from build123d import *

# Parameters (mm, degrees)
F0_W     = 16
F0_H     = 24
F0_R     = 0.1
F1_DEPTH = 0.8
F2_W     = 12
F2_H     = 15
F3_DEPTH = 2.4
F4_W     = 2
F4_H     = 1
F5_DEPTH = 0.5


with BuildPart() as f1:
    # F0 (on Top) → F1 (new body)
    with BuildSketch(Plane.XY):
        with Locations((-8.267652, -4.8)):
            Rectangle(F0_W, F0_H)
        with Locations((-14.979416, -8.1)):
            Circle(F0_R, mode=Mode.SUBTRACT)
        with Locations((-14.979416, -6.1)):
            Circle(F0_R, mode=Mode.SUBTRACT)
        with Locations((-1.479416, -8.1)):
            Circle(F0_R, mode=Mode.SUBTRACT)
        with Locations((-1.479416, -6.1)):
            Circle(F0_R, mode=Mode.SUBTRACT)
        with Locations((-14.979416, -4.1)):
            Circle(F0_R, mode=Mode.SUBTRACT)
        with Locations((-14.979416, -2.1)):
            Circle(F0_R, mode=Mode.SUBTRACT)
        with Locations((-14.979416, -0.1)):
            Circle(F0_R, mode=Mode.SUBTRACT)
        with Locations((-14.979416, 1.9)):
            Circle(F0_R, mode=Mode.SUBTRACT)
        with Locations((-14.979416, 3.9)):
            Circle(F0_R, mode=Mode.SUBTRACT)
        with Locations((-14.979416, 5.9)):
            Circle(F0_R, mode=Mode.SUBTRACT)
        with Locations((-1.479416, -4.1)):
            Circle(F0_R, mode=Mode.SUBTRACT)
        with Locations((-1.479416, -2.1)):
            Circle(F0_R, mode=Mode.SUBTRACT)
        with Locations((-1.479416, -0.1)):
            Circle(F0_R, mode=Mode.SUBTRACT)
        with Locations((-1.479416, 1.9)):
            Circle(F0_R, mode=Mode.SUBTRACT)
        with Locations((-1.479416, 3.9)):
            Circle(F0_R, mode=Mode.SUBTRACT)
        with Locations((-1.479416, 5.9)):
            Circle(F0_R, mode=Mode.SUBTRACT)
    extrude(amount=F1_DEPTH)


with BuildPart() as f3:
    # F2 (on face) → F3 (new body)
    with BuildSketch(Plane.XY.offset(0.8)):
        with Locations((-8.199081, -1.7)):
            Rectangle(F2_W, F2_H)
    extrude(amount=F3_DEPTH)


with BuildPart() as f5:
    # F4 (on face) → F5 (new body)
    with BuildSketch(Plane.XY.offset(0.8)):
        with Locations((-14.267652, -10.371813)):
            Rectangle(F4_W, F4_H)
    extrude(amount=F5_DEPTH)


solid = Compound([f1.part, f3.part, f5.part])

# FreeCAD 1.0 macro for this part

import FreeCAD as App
import Part
import Sketcher
from FreeCAD import Vector
Q = App.Units.Quantity


def add_polygon(sketch, points):
    """Adds a closed chain of lines whose ends are joined by coincident constraints."""
    first, n = sketch.GeometryCount, len(points)
    for a, b in zip(points, points[1:] + points[:1]):
        sketch.addGeometry(Part.LineSegment(App.Vector(*a, 0), App.Vector(*b, 0)), False)
    for i in range(n):
        sketch.addConstraint(Sketcher.Constraint("Coincident", first + i, 2, first + (i + 1) % n, 1))

doc = App.newDocument("Part")
params = doc.addObject("Spreadsheet::Sheet", "Params")
for row, (alias, value) in enumerate([
    ("sketch1_diameter", "0.2 mm"),
    ("sketch1_width", "16 mm"),
    ("sketch1_height", "24 mm"),
    ("pad1_length", "0.8 mm"),
    ("sketch2_width", "12 mm"),
    ("sketch2_height", "15 mm"),
    ("pad2_length", "2.4 mm"),
    ("sketch3_width", "2 mm"),
    ("sketch3_height", "1 mm"),
    ("pad3_length", "0.5 mm"),
], start=1):
    params.set(f"A{row}", alias)
    params.set(f"B{row}", "=" + value)
    params.setAlias(f"B{row}", alias)

body = doc.addObject("PartDesign::Body", "Body")

# Sketch on XY plane
sketch1 = body.newObject("Sketcher::SketchObject", "Sketch")
sketch1.AttachmentSupport = (doc.getObject("XY_Plane"), [""])
sketch1.MapMode = "FlatFace"
add_polygon(sketch1, [(-16.27, 7.2), (-16.27, -16.8), (-0.27, -16.8), (-0.27, 7.2)])  # lines 0-3
sketch1.addGeometry(Part.Circle(Vector(-14.98, -8.1, 0), Vector(0, 0, 1), 0.1), False)  # 4
sketch1.addGeometry(Part.Circle(Vector(-14.98, -6.1, 0), Vector(0, 0, 1), 0.1), False)  # 5
sketch1.addGeometry(Part.Circle(Vector(-14.98, -4.1, 0), Vector(0, 0, 1), 0.1), False)  # 6
sketch1.addGeometry(Part.Circle(Vector(-14.98, -2.1, 0), Vector(0, 0, 1), 0.1), False)  # 7
sketch1.addGeometry(Part.Circle(Vector(-1.48, -8.1, 0), Vector(0, 0, 1), 0.1), False)  # 8
sketch1.addGeometry(Part.Circle(Vector(-1.48, -6.1, 0), Vector(0, 0, 1), 0.1), False)  # 9
sketch1.addGeometry(Part.Circle(Vector(-1.48, -4.1, 0), Vector(0, 0, 1), 0.1), False)  # 10
sketch1.addGeometry(Part.Circle(Vector(-1.48, -2.1, 0), Vector(0, 0, 1), 0.1), False)  # 11
sketch1.addGeometry(Part.Circle(Vector(-14.98, -0.1, 0), Vector(0, 0, 1), 0.1), False)  # 12
sketch1.addGeometry(Part.Circle(Vector(-14.98, 1.9, 0), Vector(0, 0, 1), 0.1), False)  # 13
sketch1.addGeometry(Part.Circle(Vector(-14.98, 3.9, 0), Vector(0, 0, 1), 0.1), False)  # 14
sketch1.addGeometry(Part.Circle(Vector(-14.98, 5.9, 0), Vector(0, 0, 1), 0.1), False)  # 15
sketch1.addGeometry(Part.Circle(Vector(-1.48, -0.1, 0), Vector(0, 0, 1), 0.1), False)  # 16
sketch1.addGeometry(Part.Circle(Vector(-1.48, 1.9, 0), Vector(0, 0, 1), 0.1), False)  # 17
sketch1.addGeometry(Part.Circle(Vector(-1.48, 3.9, 0), Vector(0, 0, 1), 0.1), False)  # 18
sketch1.addGeometry(Part.Circle(Vector(-1.48, 5.9, 0), Vector(0, 0, 1), 0.1), False)  # 19
sketch1.addConstraint(Sketcher.Constraint("Vertical", 0))
sketch1.addConstraint(Sketcher.Constraint("Horizontal", 1))
sketch1.addConstraint(Sketcher.Constraint("Vertical", 2))
sketch1.addConstraint(Sketcher.Constraint("Horizontal", 3))
sketch1.addConstraint(Sketcher.Constraint("Equal", 4, 5))
sketch1.addConstraint(Sketcher.Constraint("Equal", 5, 6))
sketch1.addConstraint(Sketcher.Constraint("Equal", 6, 7))
sketch1.addConstraint(Sketcher.Constraint("Equal", 7, 8))
sketch1.addConstraint(Sketcher.Constraint("Equal", 8, 9))
sketch1.addConstraint(Sketcher.Constraint("Equal", 9, 10))
sketch1.addConstraint(Sketcher.Constraint("Equal", 10, 11))
sketch1.addConstraint(Sketcher.Constraint("Equal", 11, 12))
sketch1.addConstraint(Sketcher.Constraint("Equal", 12, 13))
sketch1.addConstraint(Sketcher.Constraint("Equal", 13, 14))
sketch1.addConstraint(Sketcher.Constraint("Equal", 14, 15))
sketch1.addConstraint(Sketcher.Constraint("Equal", 15, 16))
sketch1.addConstraint(Sketcher.Constraint("Equal", 16, 17))
sketch1.addConstraint(Sketcher.Constraint("Equal", 17, 18))
sketch1.addConstraint(Sketcher.Constraint("Equal", 18, 19))
sketch1.addConstraint(Sketcher.Constraint("Horizontal", 4, 3, 8, 3))
sketch1.addConstraint(Sketcher.Constraint("Horizontal", 5, 3, 9, 3))
sketch1.addConstraint(Sketcher.Constraint("Horizontal", 6, 3, 10, 3))
sketch1.addConstraint(Sketcher.Constraint("Horizontal", 7, 3, 11, 3))
sketch1.addConstraint(Sketcher.Constraint("Horizontal", 12, 3, 16, 3))
sketch1.addConstraint(Sketcher.Constraint("Horizontal", 13, 3, 17, 3))
sketch1.addConstraint(Sketcher.Constraint("Horizontal", 14, 3, 18, 3))
sketch1.addConstraint(Sketcher.Constraint("Horizontal", 15, 3, 19, 3))
sketch1.addConstraint(Sketcher.Constraint("Vertical", 4, 3, 5, 3))
sketch1.addConstraint(Sketcher.Constraint("Vertical", 5, 3, 6, 3))
sketch1.addConstraint(Sketcher.Constraint("Vertical", 6, 3, 7, 3))
sketch1.addConstraint(Sketcher.Constraint("Vertical", 8, 3, 9, 3))
sketch1.addConstraint(Sketcher.Constraint("Vertical", 9, 3, 10, 3))
sketch1.addConstraint(Sketcher.Constraint("Vertical", 10, 3, 11, 3))
sketch1.addConstraint(Sketcher.Constraint("Vertical", 7, 3, 12, 3))
sketch1.addConstraint(Sketcher.Constraint("Vertical", 12, 3, 13, 3))
sketch1.addConstraint(Sketcher.Constraint("Vertical", 13, 3, 14, 3))
sketch1.addConstraint(Sketcher.Constraint("Vertical", 14, 3, 15, 3))
sketch1.addConstraint(Sketcher.Constraint("Vertical", 11, 3, 16, 3))
sketch1.addConstraint(Sketcher.Constraint("Vertical", 16, 3, 17, 3))
sketch1.addConstraint(Sketcher.Constraint("Vertical", 17, 3, 18, 3))
sketch1.addConstraint(Sketcher.Constraint("Vertical", 18, 3, 19, 3))
sketch1.addConstraint(Sketcher.Constraint("Diameter", 4, Q("0.2 mm")))
sketch1.addConstraint(Sketcher.Constraint("DistanceX", 1, 1, 1, 2, Q("16 mm")))
sketch1.addConstraint(Sketcher.Constraint("DistanceY", 0, 2, 0, 1, Q("24 mm")))
sketch1.addConstraint(Sketcher.Constraint("DistanceY", 4, 3, 5, 3, Q("2 mm")))
sketch1.addConstraint(Sketcher.Constraint("DistanceY", 5, 3, 6, 3, Q("2 mm")))
sketch1.addConstraint(Sketcher.Constraint("DistanceY", 6, 3, 7, 3, Q("2 mm")))
sketch1.addConstraint(Sketcher.Constraint("DistanceY", 7, 3, 12, 3, Q("2 mm")))
sketch1.addConstraint(Sketcher.Constraint("DistanceY", 12, 3, 13, 3, Q("2 mm")))
sketch1.addConstraint(Sketcher.Constraint("DistanceY", 13, 3, 14, 3, Q("2 mm")))
sketch1.addConstraint(Sketcher.Constraint("DistanceY", 14, 3, 15, 3, Q("2 mm")))
sketch1.addConstraint(Sketcher.Constraint("DistanceY", 4, 3, -1, 1, Q("8.1 mm")))
sketch1.addConstraint(Sketcher.Constraint("DistanceY", 0, 2, -1, 1, Q("16.8 mm")))
sketch1.addConstraint(Sketcher.Constraint("DistanceX", 4, 3, 8, 3, Q("13.5 mm")))
sketch1.addConstraint(Sketcher.Constraint("DistanceX", 0, 2, -1, 1, Q("16.267652 mm")))
sketch1.addConstraint(Sketcher.Constraint("DistanceX", 4, 3, -1, 1, Q("14.979416 mm")))
sketch1.setExpression("Constraints[45]", "Params.sketch1_diameter")
sketch1.setExpression("Constraints[46]", "Params.sketch1_width")
sketch1.setExpression("Constraints[47]", "Params.sketch1_height")
pad1 = body.newObject("PartDesign::Pad", "Pad")
pad1.Profile = sketch1
pad1.setExpression("Length", "Params.pad1_length")
body2 = doc.addObject("PartDesign::Body", "Body001")

# Sketch on XY plane
sketch2 = body2.newObject("Sketcher::SketchObject", "Sketch001")
sketch2.AttachmentSupport = (doc.getObject("XY_Plane001"), [""])
sketch2.MapMode = "FlatFace"
sketch2.AttachmentOffset = App.Placement(Vector(0, 0, 0.8), App.Rotation())
add_polygon(sketch2, [(-14, 6), (-14, -9), (-2, -9), (-2, 6)])  # lines 0-3
sketch2.addConstraint(Sketcher.Constraint("Vertical", 0))
sketch2.addConstraint(Sketcher.Constraint("Horizontal", 1))
sketch2.addConstraint(Sketcher.Constraint("Vertical", 2))
sketch2.addConstraint(Sketcher.Constraint("Horizontal", 3))
sketch2.addConstraint(Sketcher.Constraint("DistanceX", 1, 1, 1, 2, Q("12 mm")))
sketch2.addConstraint(Sketcher.Constraint("DistanceY", 0, 2, 0, 1, Q("15 mm")))
sketch2.addConstraint(Sketcher.Constraint("DistanceY", 0, 2, -1, 1, Q("9.2 mm")))
sketch2.addConstraint(Sketcher.Constraint("DistanceX", 0, 2, -1, 1, Q("14.199081 mm")))
sketch2.setExpression("Constraints[8]", "Params.sketch2_width")
sketch2.setExpression("Constraints[9]", "Params.sketch2_height")
pad2 = body2.newObject("PartDesign::Pad", "Pad001")
pad2.Profile = sketch2
pad2.setExpression("Length", "Params.pad2_length")
body3 = doc.addObject("PartDesign::Body", "Body002")

# Sketch on XY plane
sketch3 = body3.newObject("Sketcher::SketchObject", "Sketch002")
sketch3.AttachmentSupport = (doc.getObject("XY_Plane002"), [""])
sketch3.MapMode = "FlatFace"
sketch3.AttachmentOffset = App.Placement(Vector(0, 0, 0.8), App.Rotation())
add_polygon(sketch3, [(-15.3, -9.9), (-15.3, -10.9), (-13.3, -10.9), (-13.3, -9.9)])  # lines 0-3
sketch3.addConstraint(Sketcher.Constraint("Vertical", 0))
sketch3.addConstraint(Sketcher.Constraint("Horizontal", 1))
sketch3.addConstraint(Sketcher.Constraint("Vertical", 2))
sketch3.addConstraint(Sketcher.Constraint("Horizontal", 3))
sketch3.addConstraint(Sketcher.Constraint("DistanceX", 1, 1, 1, 2, Q("2 mm")))
sketch3.addConstraint(Sketcher.Constraint("DistanceY", 0, 2, 0, 1, Q("1 mm")))
sketch3.addConstraint(Sketcher.Constraint("DistanceX", 0, 2, -1, 1, Q("15.267652 mm")))
sketch3.addConstraint(Sketcher.Constraint("DistanceY", 0, 2, -1, 1, Q("10.871813 mm")))
sketch3.setExpression("Constraints[8]", "Params.sketch3_width")
sketch3.setExpression("Constraints[9]", "Params.sketch3_height")
pad3 = body3.newObject("PartDesign::Pad", "Pad002")
pad3.Profile = sketch3
pad3.setExpression("Length", "Params.pad3_length")

doc.recompute()
